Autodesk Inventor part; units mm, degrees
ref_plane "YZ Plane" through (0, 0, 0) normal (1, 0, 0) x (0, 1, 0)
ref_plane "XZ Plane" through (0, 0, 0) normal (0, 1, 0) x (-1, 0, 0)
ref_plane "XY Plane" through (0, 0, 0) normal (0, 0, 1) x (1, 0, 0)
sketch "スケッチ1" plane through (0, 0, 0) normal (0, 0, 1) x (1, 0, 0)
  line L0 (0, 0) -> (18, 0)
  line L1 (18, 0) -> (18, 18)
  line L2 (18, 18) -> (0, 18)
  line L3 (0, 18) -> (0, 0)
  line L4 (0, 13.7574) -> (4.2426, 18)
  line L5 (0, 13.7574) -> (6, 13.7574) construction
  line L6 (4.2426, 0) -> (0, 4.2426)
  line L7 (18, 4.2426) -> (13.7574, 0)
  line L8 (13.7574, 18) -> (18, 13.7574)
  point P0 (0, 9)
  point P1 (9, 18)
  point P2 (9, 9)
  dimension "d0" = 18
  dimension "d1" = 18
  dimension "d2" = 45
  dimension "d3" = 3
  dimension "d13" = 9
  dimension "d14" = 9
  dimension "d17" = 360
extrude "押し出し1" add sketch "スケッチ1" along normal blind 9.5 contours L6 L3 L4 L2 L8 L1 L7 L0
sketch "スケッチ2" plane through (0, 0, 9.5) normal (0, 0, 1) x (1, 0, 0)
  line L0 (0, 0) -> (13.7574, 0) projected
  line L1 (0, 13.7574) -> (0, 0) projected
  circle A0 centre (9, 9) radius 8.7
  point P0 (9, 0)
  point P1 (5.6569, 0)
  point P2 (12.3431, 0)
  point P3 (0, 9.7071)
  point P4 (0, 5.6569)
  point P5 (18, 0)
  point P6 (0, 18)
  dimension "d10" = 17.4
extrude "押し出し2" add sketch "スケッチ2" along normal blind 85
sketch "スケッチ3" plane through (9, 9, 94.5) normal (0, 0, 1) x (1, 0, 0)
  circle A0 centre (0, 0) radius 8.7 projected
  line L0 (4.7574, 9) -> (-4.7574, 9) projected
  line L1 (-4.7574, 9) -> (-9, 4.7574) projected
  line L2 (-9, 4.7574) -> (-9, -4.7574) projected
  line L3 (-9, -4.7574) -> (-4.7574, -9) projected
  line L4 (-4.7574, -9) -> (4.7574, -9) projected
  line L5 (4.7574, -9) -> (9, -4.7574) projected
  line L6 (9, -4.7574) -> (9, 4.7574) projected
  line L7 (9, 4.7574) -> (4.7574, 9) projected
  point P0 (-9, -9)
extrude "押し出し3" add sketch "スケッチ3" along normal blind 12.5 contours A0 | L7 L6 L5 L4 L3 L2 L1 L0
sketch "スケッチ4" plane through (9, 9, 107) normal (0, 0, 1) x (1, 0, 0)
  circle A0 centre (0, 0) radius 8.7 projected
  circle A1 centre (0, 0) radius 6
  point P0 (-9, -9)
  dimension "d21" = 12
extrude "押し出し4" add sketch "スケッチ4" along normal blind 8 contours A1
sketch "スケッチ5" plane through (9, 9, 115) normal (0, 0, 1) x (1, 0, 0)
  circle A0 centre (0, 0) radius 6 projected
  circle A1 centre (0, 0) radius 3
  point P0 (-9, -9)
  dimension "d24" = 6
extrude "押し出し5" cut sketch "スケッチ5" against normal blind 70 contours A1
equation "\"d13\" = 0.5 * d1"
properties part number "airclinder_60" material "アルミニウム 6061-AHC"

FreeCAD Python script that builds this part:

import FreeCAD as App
import Part
import Sketcher


def add_polygon(sketch, points):
    """Adds a closed chain of lines whose ends are joined by coincident constraints."""
    first, n = sketch.GeometryCount, len(points)
    for a, b in zip(points, points[1:] + points[:1]):
        sketch.addGeometry(Part.LineSegment(App.Vector(*a, 0), App.Vector(*b, 0)), False)
    for i in range(n):
        sketch.addConstraint(Sketcher.Constraint("Coincident", first + i, 2, first + (i + 1) % n, 1))

doc = App.newDocument("Part")
body = doc.addObject("PartDesign::Body", "Body")

sketch1 = body.newObject("Sketcher::SketchObject", "Sketch")
sketch1.AttachmentSupport = (doc.getObject("XY_Plane"), [""])
sketch1.MapMode = "FlatFace"
add_polygon(sketch1, [(0, 4), (4, 0), (14, 0), (18, 4), (18, 14), (14, 18), (4, 18), (0, 14)])
sketch1.addConstraint(Sketcher.Constraint("Horizontal", 1))
sketch1.addConstraint(Sketcher.Constraint("Vertical", 3))
sketch1.addConstraint(Sketcher.Constraint("Horizontal", 5))
sketch1.addConstraint(Sketcher.Constraint("Vertical", 7))
sketch1.addConstraint(Sketcher.Constraint("PointOnObject", 0, 2, -1))
sketch1.addConstraint(Sketcher.Constraint("PointOnObject", 6, 2, -2))
sketch1.addConstraint(Sketcher.Constraint("Perpendicular", 0, 2))
sketch1.addConstraint(Sketcher.Constraint("Perpendicular", 2, 4))
sketch1.addConstraint(Sketcher.Constraint("Perpendicular", 4, 6))
sketch1.addConstraint(Sketcher.Constraint("Horizontal", 3, 2, 6, 2))
sketch1.addConstraint(Sketcher.Constraint("Horizontal", 2, 2, 7, 2))
sketch1.addConstraint(Sketcher.Constraint("Vertical", 1, 2, 4, 2))
sketch1.addConstraint(Sketcher.Constraint("Vertical", 0, 2, 5, 2))
sketch1.addConstraint(Sketcher.Constraint("Equal", 5, 3))
sketch1.addConstraint(Sketcher.Constraint("DistanceX", -1, 1, 2, 2, 18.0))
sketch1.addConstraint(Sketcher.Constraint("Distance", 0, 6.0))
pad1 = body.newObject("PartDesign::Pad", "Pad")
pad1.Profile = sketch1
pad1.Length = 9.5

sketch2 = body.newObject("Sketcher::SketchObject", "Sketch001")
sketch2.AttachmentSupport = (doc.getObject("XY_Plane"), [""])
sketch2.MapMode = "FlatFace"
sketch2.AttachmentOffset = App.Placement(App.Vector(0, 0, 9.5), App.Rotation())
sketch2.addGeometry(Part.Circle(App.Vector(9, 9, 0), App.Vector(0, 0, 1), 9), False)
sketch2.addConstraint(Sketcher.Constraint("Diameter", 0, 17.4))
sketch2.addConstraint(Sketcher.Constraint("DistanceX", -1, 1, 0, 3, 9.0))
sketch2.addConstraint(Sketcher.Constraint("DistanceY", -1, 1, 0, 3, 9.0))
pad2 = body.newObject("PartDesign::Pad", "Pad001")
pad2.Profile = sketch2
pad2.Length = 85

sketch3 = body.newObject("Sketcher::SketchObject", "Sketch002")
sketch3.AttachmentSupport = (doc.getObject("XY_Plane"), [""])
sketch3.MapMode = "FlatFace"
sketch3.AttachmentOffset = App.Placement(App.Vector(0, 0, 94.5), App.Rotation())
add_polygon(sketch3, [(18, 14), (14, 18), (4, 18), (0, 14), (0, 4), (4, 0), (14, 0), (18, 4)])
sketch3.addConstraint(Sketcher.Constraint("Horizontal", 1))
sketch3.addConstraint(Sketcher.Constraint("Vertical", 3))
sketch3.addConstraint(Sketcher.Constraint("Horizontal", 5))
sketch3.addConstraint(Sketcher.Constraint("Vertical", 7))
sketch3.addConstraint(Sketcher.Constraint("PointOnObject", 2, 2, -2))
sketch3.addConstraint(Sketcher.Constraint("PointOnObject", 4, 2, -1))
sketch3.addConstraint(Sketcher.Constraint("Perpendicular", 0, 2))
sketch3.addConstraint(Sketcher.Constraint("Perpendicular", 2, 4))
sketch3.addConstraint(Sketcher.Constraint("Perpendicular", 4, 6))
sketch3.addConstraint(Sketcher.Constraint("Horizontal", 3, 2, 6, 2))
sketch3.addConstraint(Sketcher.Constraint("Horizontal", 2, 2, 7, 2))
sketch3.addConstraint(Sketcher.Constraint("Vertical", 1, 2, 4, 2))
sketch3.addConstraint(Sketcher.Constraint("Vertical", 0, 2, 5, 2))
sketch3.addConstraint(Sketcher.Constraint("Equal", 5, 3))
sketch3.addConstraint(Sketcher.Constraint("Distance", 0, 6.0))
sketch3.addConstraint(Sketcher.Constraint("DistanceY", -1, 1, 0, 2, 18.0))
pad3 = body.newObject("PartDesign::Pad", "Pad002")
pad3.Profile = sketch3
pad3.Length = 12.5

sketch4 = body.newObject("Sketcher::SketchObject", "Sketch003")
sketch4.AttachmentSupport = (doc.getObject("XY_Plane"), [""])
sketch4.MapMode = "FlatFace"
sketch4.AttachmentOffset = App.Placement(App.Vector(0, 0, 107), App.Rotation())
sketch4.addGeometry(Part.Circle(App.Vector(9, 9, 0), App.Vector(0, 0, 1), 6), False)
sketch4.addConstraint(Sketcher.Constraint("Diameter", 0, 12.0))
sketch4.addConstraint(Sketcher.Constraint("DistanceX", -1, 1, 0, 3, 9.0))
sketch4.addConstraint(Sketcher.Constraint("DistanceY", -1, 1, 0, 3, 9.0))
pad4 = body.newObject("PartDesign::Pad", "Pad003")
pad4.Profile = sketch4
pad4.Length = 8

sketch5 = body.newObject("Sketcher::SketchObject", "Sketch004")
sketch5.AttachmentSupport = (doc.getObject("XY_Plane"), [""])
sketch5.MapMode = "FlatFace"
sketch5.AttachmentOffset = App.Placement(App.Vector(0, 0, 115), App.Rotation())
sketch5.addGeometry(Part.Circle(App.Vector(9, 9, 0), App.Vector(0, 0, 1), 3), False)
sketch5.addConstraint(Sketcher.Constraint("Diameter", 0, 6.0))
sketch5.addConstraint(Sketcher.Constraint("DistanceX", -1, 1, 0, 3, 9.0))
sketch5.addConstraint(Sketcher.Constraint("DistanceY", -1, 1, 0, 3, 9.0))
pocket1 = body.newObject("PartDesign::Pocket", "Pocket")
pocket1.Profile = sketch5
pocket1.Length = 70

doc.recompute()
